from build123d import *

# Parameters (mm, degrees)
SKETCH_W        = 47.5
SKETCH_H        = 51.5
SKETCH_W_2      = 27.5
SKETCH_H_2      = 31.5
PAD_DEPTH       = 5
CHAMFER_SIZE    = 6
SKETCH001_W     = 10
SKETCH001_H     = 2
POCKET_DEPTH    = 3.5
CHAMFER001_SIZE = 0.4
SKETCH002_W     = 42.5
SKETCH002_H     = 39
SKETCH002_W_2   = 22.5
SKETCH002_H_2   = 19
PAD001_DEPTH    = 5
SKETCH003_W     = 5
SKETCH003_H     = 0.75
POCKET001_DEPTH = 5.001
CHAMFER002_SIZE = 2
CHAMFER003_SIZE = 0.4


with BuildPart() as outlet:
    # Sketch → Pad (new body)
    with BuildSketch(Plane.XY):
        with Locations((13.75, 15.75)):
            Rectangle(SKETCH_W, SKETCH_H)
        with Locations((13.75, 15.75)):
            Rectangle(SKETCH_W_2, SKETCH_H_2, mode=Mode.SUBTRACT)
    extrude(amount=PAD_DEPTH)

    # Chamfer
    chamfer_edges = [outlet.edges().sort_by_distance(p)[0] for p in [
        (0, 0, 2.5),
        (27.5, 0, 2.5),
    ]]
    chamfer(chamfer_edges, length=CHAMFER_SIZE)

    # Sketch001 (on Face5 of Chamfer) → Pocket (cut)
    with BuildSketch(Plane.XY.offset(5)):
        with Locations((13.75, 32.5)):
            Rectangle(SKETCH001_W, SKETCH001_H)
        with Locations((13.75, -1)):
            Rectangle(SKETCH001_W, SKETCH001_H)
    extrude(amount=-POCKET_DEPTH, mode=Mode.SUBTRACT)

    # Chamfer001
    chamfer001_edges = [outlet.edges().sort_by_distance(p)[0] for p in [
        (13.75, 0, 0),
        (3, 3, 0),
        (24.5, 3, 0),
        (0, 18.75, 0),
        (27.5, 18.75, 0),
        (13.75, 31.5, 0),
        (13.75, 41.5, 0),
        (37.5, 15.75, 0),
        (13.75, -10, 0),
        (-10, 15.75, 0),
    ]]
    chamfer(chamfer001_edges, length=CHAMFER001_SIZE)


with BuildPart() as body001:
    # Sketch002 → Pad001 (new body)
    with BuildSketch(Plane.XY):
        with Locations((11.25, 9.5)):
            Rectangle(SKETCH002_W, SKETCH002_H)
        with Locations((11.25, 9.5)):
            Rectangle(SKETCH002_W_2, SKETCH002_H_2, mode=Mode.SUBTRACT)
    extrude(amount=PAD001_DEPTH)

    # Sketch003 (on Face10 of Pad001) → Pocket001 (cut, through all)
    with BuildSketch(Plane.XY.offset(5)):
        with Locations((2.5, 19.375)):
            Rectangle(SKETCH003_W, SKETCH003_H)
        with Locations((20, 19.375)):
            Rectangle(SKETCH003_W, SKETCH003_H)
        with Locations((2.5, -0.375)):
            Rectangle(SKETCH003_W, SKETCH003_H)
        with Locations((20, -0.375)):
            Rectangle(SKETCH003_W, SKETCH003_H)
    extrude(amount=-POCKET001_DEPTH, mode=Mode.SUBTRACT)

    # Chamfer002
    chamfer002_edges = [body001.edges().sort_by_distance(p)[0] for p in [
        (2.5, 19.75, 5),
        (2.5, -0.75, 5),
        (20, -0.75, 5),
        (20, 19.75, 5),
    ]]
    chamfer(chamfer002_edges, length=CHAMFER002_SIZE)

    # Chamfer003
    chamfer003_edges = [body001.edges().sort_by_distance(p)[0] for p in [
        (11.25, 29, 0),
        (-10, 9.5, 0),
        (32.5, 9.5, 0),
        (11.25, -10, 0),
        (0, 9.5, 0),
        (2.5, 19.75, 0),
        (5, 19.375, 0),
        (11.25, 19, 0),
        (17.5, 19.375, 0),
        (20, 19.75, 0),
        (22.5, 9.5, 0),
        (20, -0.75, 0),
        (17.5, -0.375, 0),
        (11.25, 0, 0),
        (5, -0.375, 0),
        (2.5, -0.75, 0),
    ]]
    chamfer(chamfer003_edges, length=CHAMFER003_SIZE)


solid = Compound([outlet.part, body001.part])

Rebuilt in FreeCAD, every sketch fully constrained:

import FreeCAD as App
import Part
import Sketcher

V = App.Vector


def edges_at(feature, points):
    """Names of the edges that pass closest to the given points."""
    edges = feature.Shape.Edges
    near = lambda p: min(range(len(edges)), key=lambda i: edges[i].distToShape(Part.Vertex(*p))[0])
    return sorted({f"Edge{near(p) + 1}" for p in points})

doc = App.newDocument("Part")
params = doc.addObject("Spreadsheet::Sheet", "Params")
for row, (alias, value) in enumerate([
    ("sketch1_width", "47.5 mm"),
    ("sketch1_width2", "27.5 mm"),
    ("sketch1_height", "51.5 mm"),
    ("sketch1_height2", "31.5 mm"),
    ("pad1_length", "5 mm"),
    ("chamfer_size", "6 mm"),
    ("sketch2_width", "10 mm"),
    ("sketch2_height", "2 mm"),
    ("pocket1_length", "3.5 mm"),
    ("chamfer2_size", "0.4 mm"),
    ("sketch3_height", "39 mm"),
    ("sketch3_height2", "19 mm"),
    ("sketch3_width", "42.5 mm"),
    ("sketch3_width2", "22.5 mm"),
    ("pad2_length", "5 mm"),
    ("sketch4_width", "5 mm"),
    ("sketch4_height", "0.75 mm"),
    ("chamfer3_size", "2 mm"),
    ("chamfer4_size", "0.4 mm"),
], start=1):
    params.set(f"A{row}", alias)
    params.set(f"B{row}", "=" + value)
    params.setAlias(f"B{row}", alias)

body = doc.addObject("PartDesign::Body", "Body")

# Sketch on XY plane
sketch1 = body.newObject("Sketcher::SketchObject", "Sketch")
sketch1.AttachmentSupport = (doc.getObject("XY_Plane"), [""])
sketch1.MapMode = "FlatFace"
sketch1.addGeometry([
    Part.LineSegment(V(-10, 42, 0), V(-10, -10, 0)),  # 0
    Part.LineSegment(V(-10, -10, 0), V(38, -10, 0)),  # 1
    Part.LineSegment(V(38, -10, 0), V(38, 42, 0)),  # 2
    Part.LineSegment(V(38, 42, 0), V(-10, 42, 0)),  # 3
    Part.LineSegment(V(28, 0, 0), V(0, 0, 0)),  # 4
    Part.LineSegment(V(0, 0, 0), V(0, 32, 0)),  # 5
    Part.LineSegment(V(0, 32, 0), V(28, 32, 0)),  # 6
    Part.LineSegment(V(28, 32, 0), V(28, 0, 0)),  # 7
], False)
sketch1.addConstraint([
    Sketcher.Constraint("Coincident", 0, 2, 1, 1),
    Sketcher.Constraint("Coincident", 1, 2, 2, 1),
    Sketcher.Constraint("Coincident", 2, 2, 3, 1),
    Sketcher.Constraint("Coincident", 3, 2, 0, 1),
    Sketcher.Constraint("Coincident", 4, 2, 5, 1),
    Sketcher.Constraint("Coincident", 5, 2, 6, 1),
    Sketcher.Constraint("Coincident", 6, 2, 7, 1),
    Sketcher.Constraint("Coincident", 7, 2, 4, 1),
    Sketcher.Constraint("Vertical", 0),
    Sketcher.Constraint("Horizontal", 1),
    Sketcher.Constraint("Vertical", 2),
    Sketcher.Constraint("Horizontal", 3),
    Sketcher.Constraint("Horizontal", 4),
    Sketcher.Constraint("Vertical", 5),
    Sketcher.Constraint("Horizontal", 6),
    Sketcher.Constraint("Vertical", 7),
    Sketcher.Constraint("Coincident", 4, 2, -1, 1),
    Sketcher.Constraint("DistanceX", 1, 1, 1, 2, 47.5),
    Sketcher.Constraint("DistanceX", 4, 2, 4, 1, 27.5),
    Sketcher.Constraint("DistanceY", 0, 2, 0, 1, 51.5),
    Sketcher.Constraint("DistanceY", 5, 1, 5, 2, 31.5),
    Sketcher.Constraint("DistanceX", 0, 2, -1, 1, 10.0),
    Sketcher.Constraint("DistanceY", 0, 2, -1, 1, 10.0),
])
sketch1.setExpression("Constraints[17]", "Params.sketch1_width")
sketch1.setExpression("Constraints[18]", "Params.sketch1_width2")
sketch1.setExpression("Constraints[19]", "Params.sketch1_height")
sketch1.setExpression("Constraints[20]", "Params.sketch1_height2")
pad1 = body.newObject("PartDesign::Pad", "Pad")
pad1.Profile = sketch1
pad1.setExpression("Length", "Params.pad1_length")
doc.recompute()

chamfer = body.newObject("PartDesign::Chamfer", "Chamfer")
chamfer.Base = (pad1, edges_at(pad1, [(0, 0, 2.5), (27.5, 0, 2.5)]))
chamfer.setExpression("Size", "Params.chamfer_size")

# Sketch on XY plane
sketch2 = body.newObject("Sketcher::SketchObject", "Sketch001")
sketch2.AttachmentSupport = (doc.getObject("XY_Plane"), [""])
sketch2.MapMode = "FlatFace"
sketch2.AttachmentOffset = App.Placement(V(0, 0, 5), App.Rotation())
sketch2.addGeometry([
    Part.LineSegment(V(8.8, 33.5, 0), V(8.8, 31.5, 0)),  # 0
    Part.LineSegment(V(8.8, 31.5, 0), V(18.8, 31.5, 0)),  # 1
    Part.LineSegment(V(18.8, 31.5, 0), V(18.8, 33.5, 0)),  # 2
    Part.LineSegment(V(18.8, 33.5, 0), V(8.8, 33.5, 0)),  # 3
    Part.LineSegment(V(8.8, 0, 0), V(8.8, -2, 0)),  # 4
    Part.LineSegment(V(8.8, -2, 0), V(18.8, -2, 0)),  # 5
    Part.LineSegment(V(18.8, -2, 0), V(18.8, 0, 0)),  # 6
    Part.LineSegment(V(18.8, 0, 0), V(8.8, 0, 0)),  # 7
], False)
sketch2.addConstraint([
    Sketcher.Constraint("Coincident", 0, 2, 1, 1),
    Sketcher.Constraint("Coincident", 1, 2, 2, 1),
    Sketcher.Constraint("Coincident", 2, 2, 3, 1),
    Sketcher.Constraint("Coincident", 3, 2, 0, 1),
    Sketcher.Constraint("Coincident", 4, 2, 5, 1),
    Sketcher.Constraint("Coincident", 5, 2, 6, 1),
    Sketcher.Constraint("Coincident", 6, 2, 7, 1),
    Sketcher.Constraint("Coincident", 7, 2, 4, 1),
    Sketcher.Constraint("Vertical", 0),
    Sketcher.Constraint("Horizontal", 1),
    Sketcher.Constraint("Vertical", 2),
    Sketcher.Constraint("Horizontal", 3),
    Sketcher.Constraint("Vertical", 4),
    Sketcher.Constraint("Horizontal", 5),
    Sketcher.Constraint("Vertical", 6),
    Sketcher.Constraint("Horizontal", 7),
    Sketcher.Constraint("PointOnObject", 6, 2, -1),
    Sketcher.Constraint("Vertical", 3, 2, 4, 2),
    Sketcher.Constraint("Vertical", 2, 2, 5, 2),
    Sketcher.Constraint("Equal", 2, 4),
    Sketcher.Constraint("DistanceX", 1, 1, 1, 2, 10.0),
    Sketcher.Constraint("DistanceY", 0, 2, 0, 1, 2.0),
    Sketcher.Constraint("DistanceY", -1, 1, 0, 2, 31.5),
    Sketcher.Constraint("DistanceX", -1, 1, 0, 2, 8.75),
])
sketch2.setExpression("Constraints[20]", "Params.sketch2_width")
sketch2.setExpression("Constraints[21]", "Params.sketch2_height")
pocket1 = body.newObject("PartDesign::Pocket", "Pocket")
pocket1.Profile = sketch2
pocket1.setExpression("Length", "Params.pocket1_length")
doc.recompute()

chamfer2 = body.newObject("PartDesign::Chamfer", "Chamfer001")
chamfer2.Base = (pocket1, edges_at(pocket1, [
    (13.75, 0, 0),
    (3, 3, 0),
    (24.5, 3, 0),
    (0, 18.75, 0),
    (27.5, 18.75, 0),
    (13.75, 31.5, 0),
    (13.75, 41.5, 0),
    (37.5, 15.75, 0),
    (13.75, -10, 0),
    (-10, 15.75, 0),
]))
chamfer2.setExpression("Size", "Params.chamfer2_size")
body2 = doc.addObject("PartDesign::Body", "Body001")

# Sketch on XY plane
sketch3 = body2.newObject("Sketcher::SketchObject", "Sketch002")
sketch3.AttachmentSupport = (doc.getObject("XY_Plane001"), [""])
sketch3.MapMode = "FlatFace"
sketch3.addGeometry([
    Part.LineSegment(V(-10, 29, 0), V(-10, -10, 0)),  # 0
    Part.LineSegment(V(-10, -10, 0), V(32, -10, 0)),  # 1
    Part.LineSegment(V(32, -10, 0), V(32, 29, 0)),  # 2
    Part.LineSegment(V(32, 29, 0), V(-10, 29, 0)),  # 3
    Part.LineSegment(V(22, 0, 0), V(0, 0, 0)),  # 4
    Part.LineSegment(V(0, 0, 0), V(0, 19, 0)),  # 5
    Part.LineSegment(V(0, 19, 0), V(22, 19, 0)),  # 6
    Part.LineSegment(V(22, 19, 0), V(22, 0, 0)),  # 7
], False)
sketch3.addConstraint([
    Sketcher.Constraint("Coincident", 0, 2, 1, 1),
    Sketcher.Constraint("Coincident", 1, 2, 2, 1),
    Sketcher.Constraint("Coincident", 2, 2, 3, 1),
    Sketcher.Constraint("Coincident", 3, 2, 0, 1),
    Sketcher.Constraint("Coincident", 4, 2, 5, 1),
    Sketcher.Constraint("Coincident", 5, 2, 6, 1),
    Sketcher.Constraint("Coincident", 6, 2, 7, 1),
    Sketcher.Constraint("Coincident", 7, 2, 4, 1),
    Sketcher.Constraint("Vertical", 0),
    Sketcher.Constraint("Horizontal", 1),
    Sketcher.Constraint("Vertical", 2),
    Sketcher.Constraint("Horizontal", 3),
    Sketcher.Constraint("Horizontal", 4),
    Sketcher.Constraint("Vertical", 5),
    Sketcher.Constraint("Horizontal", 6),
    Sketcher.Constraint("Vertical", 7),
    Sketcher.Constraint("Coincident", 4, 2, -1, 1),
    Sketcher.Constraint("DistanceY", 0, 2, 0, 1, 39.0),
    Sketcher.Constraint("DistanceY", 5, 1, 5, 2, 19.0),
    Sketcher.Constraint("DistanceX", 1, 1, 1, 2, 42.5),
    Sketcher.Constraint("DistanceX", 4, 2, 4, 1, 22.5),
    Sketcher.Constraint("DistanceX", 0, 2, -1, 1, 10.0),
    Sketcher.Constraint("DistanceY", 0, 2, -1, 1, 10.0),
])
sketch3.setExpression("Constraints[17]", "Params.sketch3_height")
sketch3.setExpression("Constraints[18]", "Params.sketch3_height2")
sketch3.setExpression("Constraints[19]", "Params.sketch3_width")
sketch3.setExpression("Constraints[20]", "Params.sketch3_width2")
pad2 = body2.newObject("PartDesign::Pad", "Pad001")
pad2.Profile = sketch3
pad2.setExpression("Length", "Params.pad2_length")

# Sketch on XY plane
sketch4 = body2.newObject("Sketcher::SketchObject", "Sketch003")
sketch4.AttachmentSupport = (doc.getObject("XY_Plane001"), [""])
sketch4.MapMode = "FlatFace"
sketch4.AttachmentOffset = App.Placement(V(0, 0, 5), App.Rotation())
sketch4.addGeometry([
    Part.LineSegment(V(0, 19.8, 0), V(0, 19, 0)),  # 0
    Part.LineSegment(V(0, 19, 0), V(5, 19, 0)),  # 1
    Part.LineSegment(V(5, 19, 0), V(5, 19.8, 0)),  # 2
    Part.LineSegment(V(5, 19.8, 0), V(0, 19.8, 0)),  # 3
    Part.LineSegment(V(17.5, 19.8, 0), V(17.5, 19, 0)),  # 4
    Part.LineSegment(V(17.5, 19, 0), V(22.5, 19, 0)),  # 5
    Part.LineSegment(V(22.5, 19, 0), V(22.5, 19.8, 0)),  # 6
    Part.LineSegment(V(22.5, 19.8, 0), V(17.5, 19.8, 0)),  # 7
    Part.LineSegment(V(0, 0, 0), V(0, -0.8, 0)),  # 8
    Part.LineSegment(V(0, -0.8, 0), V(5, -0.8, 0)),  # 9
    Part.LineSegment(V(5, -0.8, 0), V(5, 0, 0)),  # 10
    Part.LineSegment(V(5, 0, 0), V(0, 0, 0)),  # 11
    Part.LineSegment(V(17.5, 0, 0), V(17.5, -0.8, 0)),  # 12
    Part.LineSegment(V(17.5, -0.8, 0), V(22.5, -0.8, 0)),  # 13
    Part.LineSegment(V(22.5, -0.8, 0), V(22.5, 0, 0)),  # 14
    Part.LineSegment(V(22.5, 0, 0), V(17.5, 0, 0)),  # 15
], False)
sketch4.addConstraint([
    Sketcher.Constraint("Coincident", 0, 2, 1, 1),
    Sketcher.Constraint("Coincident", 1, 2, 2, 1),
    Sketcher.Constraint("Coincident", 2, 2, 3, 1),
    Sketcher.Constraint("Coincident", 3, 2, 0, 1),
    Sketcher.Constraint("Coincident", 4, 2, 5, 1),
    Sketcher.Constraint("Coincident", 5, 2, 6, 1),
    Sketcher.Constraint("Coincident", 6, 2, 7, 1),
    Sketcher.Constraint("Coincident", 7, 2, 4, 1),
    Sketcher.Constraint("Coincident", 8, 2, 9, 1),
    Sketcher.Constraint("Coincident", 9, 2, 10, 1),
    Sketcher.Constraint("Coincident", 10, 2, 11, 1),
    Sketcher.Constraint("Coincident", 11, 2, 8, 1),
    Sketcher.Constraint("Coincident", 12, 2, 13, 1),
    Sketcher.Constraint("Coincident", 13, 2, 14, 1),
    Sketcher.Constraint("Coincident", 14, 2, 15, 1),
    Sketcher.Constraint("Coincident", 15, 2, 12, 1),
    Sketcher.Constraint("Vertical", 0),
    Sketcher.Constraint("Horizontal", 1),
    Sketcher.Constraint("Vertical", 2),
    Sketcher.Constraint("Horizontal", 3),
    Sketcher.Constraint("Vertical", 4),
    Sketcher.Constraint("Horizontal", 5),
    Sketcher.Constraint("Vertical", 6),
    Sketcher.Constraint("Horizontal", 7),
    Sketcher.Constraint("Vertical", 8),
    Sketcher.Constraint("Horizontal", 9),
    Sketcher.Constraint("Vertical", 10),
    Sketcher.Constraint("Horizontal", 11),
    Sketcher.Constraint("Vertical", 12),
    Sketcher.Constraint("Horizontal", 13),
    Sketcher.Constraint("Vertical", 14),
    Sketcher.Constraint("Horizontal", 15),
    Sketcher.Constraint("Coincident", 11, 2, -1, 1),
    Sketcher.Constraint("PointOnObject", 0, 2, -2),
    Sketcher.Constraint("PointOnObject", 14, 2, -1),
    Sketcher.Constraint("Horizontal", 1, 2, 4, 2),
    Sketcher.Constraint("Horizontal", 3, 2, 6, 2),
    Sketcher.Constraint("Horizontal", 9, 2, 12, 2),
    Sketcher.Constraint("Vertical", 2, 2, 9, 2),
    Sketcher.Constraint("Vertical", 7, 2, 12, 2),
    Sketcher.Constraint("Vertical", 6, 2, 13, 2),
    Sketcher.Constraint("Equal", 3, 5),
    Sketcher.Constraint("Equal", 6, 8),
    Sketcher.Constraint("DistanceX", 1, 1, 1, 2, 5.0),
    Sketcher.Constraint("DistanceY", -1, 1, 0, 2, 19.0),
    Sketcher.Constraint("DistanceY", 0, 2, 0, 1, 0.75),
    Sketcher.Constraint("DistanceX", -1, 1, 4, 2, 17.5),
])
sketch4.setExpression("Constraints[43]", "Params.sketch4_width")
sketch4.setExpression("Constraints[45]", "Params.sketch4_height")
pocket2 = body2.newObject("PartDesign::Pocket", "Pocket001")
pocket2.Profile = sketch4
pocket2.Type = "ThroughAll"
doc.recompute()

chamfer3 = body2.newObject("PartDesign::Chamfer", "Chamfer002")
chamfer3.Base = (pocket2, edges_at(pocket2, [
    (2.5, 19.75, 5),
    (2.5, -0.75, 5),
    (20, -0.75, 5),
    (20, 19.75, 5),
]))
chamfer3.setExpression("Size", "Params.chamfer3_size")
doc.recompute()

chamfer4 = body2.newObject("PartDesign::Chamfer", "Chamfer003")
chamfer4.Base = (chamfer3, edges_at(chamfer3, [
    (11.25, 29, 0),
    (-10, 9.5, 0),
    (32.5, 9.5, 0),
    (11.25, -10, 0),
    (0, 9.5, 0),
    (2.5, 19.75, 0),
    (5, 19.375, 0),
    (11.25, 19, 0),
    (17.5, 19.375, 0),
    (20, 19.75, 0),
    (22.5, 9.5, 0),
    (20, -0.75, 0),
    (17.5, -0.375, 0),
    (11.25, 0, 0),
    (5, -0.375, 0),
    (2.5, -0.75, 0),
]))
chamfer4.setExpression("Size", "Params.chamfer4_size")

doc.recompute()
